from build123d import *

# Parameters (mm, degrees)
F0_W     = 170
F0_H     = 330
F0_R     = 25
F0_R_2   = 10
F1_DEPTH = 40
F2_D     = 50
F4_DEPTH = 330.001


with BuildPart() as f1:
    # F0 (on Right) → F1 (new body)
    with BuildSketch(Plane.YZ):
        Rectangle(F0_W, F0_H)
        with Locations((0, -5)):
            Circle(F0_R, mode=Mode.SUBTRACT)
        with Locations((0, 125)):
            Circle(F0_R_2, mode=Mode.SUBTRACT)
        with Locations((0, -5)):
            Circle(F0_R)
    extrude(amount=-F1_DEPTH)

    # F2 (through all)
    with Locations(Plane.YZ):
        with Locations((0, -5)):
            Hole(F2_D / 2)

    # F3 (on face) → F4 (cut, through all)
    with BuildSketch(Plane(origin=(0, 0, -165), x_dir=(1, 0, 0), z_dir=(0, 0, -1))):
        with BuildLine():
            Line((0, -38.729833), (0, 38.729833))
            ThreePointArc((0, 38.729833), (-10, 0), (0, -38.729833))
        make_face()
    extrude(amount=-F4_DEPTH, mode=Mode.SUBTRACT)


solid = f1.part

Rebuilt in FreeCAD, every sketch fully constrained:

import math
import FreeCAD as App
import Part
import Sketcher

V = App.Vector
Q = App.Units.Quantity


def add_polygon(sketch, points):
    """Adds a closed chain of lines whose ends are joined by coincident constraints."""
    first, n = sketch.GeometryCount, len(points)
    for a, b in zip(points, points[1:] + points[:1]):
        sketch.addGeometry(Part.LineSegment(App.Vector(*a, 0), App.Vector(*b, 0)), False)
    for i in range(n):
        sketch.addConstraint(Sketcher.Constraint("Coincident", first + i, 2, first + (i + 1) % n, 1))

doc = App.newDocument("Part")
params = doc.addObject("Spreadsheet::Sheet", "Params")
for row, (alias, value) in enumerate([
    ("sketch1_diameter", "20 mm"),
    ("sketch1_width", "170 mm"),
    ("sketch1_height", "330 mm"),
    ("pad1_length", "40 mm"),
    ("sketch2_diameter", "50 mm"),
    ("hole_diameter", "50 mm"),
    ("sketch3_radius", "79.999998 mm"),
], start=1):
    params.set(f"A{row}", alias)
    params.set(f"B{row}", "=" + value)
    params.setAlias(f"B{row}", alias)

body = doc.addObject("PartDesign::Body", "Body")

sketch1 = body.newObject("Sketcher::SketchObject", "Sketch")
sketch1.AttachmentSupport = (doc.getObject("YZ_Plane"), [""])
sketch1.MapMode = "FlatFace"
add_polygon(sketch1, [(-85, 165), (-85, -165), (85, -165), (85, 165)])
sketch1.addGeometry(Part.Circle(V(0, 125, 0), V(0, 0, 1), 10), False)
sketch1.addConstraint(Sketcher.Constraint("Vertical", 0))
sketch1.addConstraint(Sketcher.Constraint("Horizontal", 1))
sketch1.addConstraint(Sketcher.Constraint("Vertical", 2))
sketch1.addConstraint(Sketcher.Constraint("Horizontal", 3))
sketch1.addConstraint(Sketcher.Constraint("Symmetric", 0, 2, 2, 2, -1, 1))
sketch1.addConstraint(Sketcher.Constraint("PointOnObject", 4, 3, -2))
sketch1.addConstraint(Sketcher.Constraint("Diameter", 4, Q("20 mm")))
sketch1.addConstraint(Sketcher.Constraint("DistanceX", 1, 1, 1, 2, Q("170 mm")))
sketch1.addConstraint(Sketcher.Constraint("DistanceY", 0, 2, 0, 1, Q("330 mm")))
sketch1.addConstraint(Sketcher.Constraint("DistanceY", -1, 1, 4, 3, Q("125 mm")))
sketch1.setExpression("Constraints[10]", "Params.sketch1_diameter")
sketch1.setExpression("Constraints[11]", "Params.sketch1_width")
sketch1.setExpression("Constraints[12]", "Params.sketch1_height")
pad1 = body.newObject("PartDesign::Pad", "Pad")
pad1.Profile = sketch1
pad1.setExpression("Length", "Params.pad1_length")
pad1.Reversed = True

sketch2 = body.newObject("Sketcher::SketchObject", "Sketch001")
sketch2.AttachmentSupport = (doc.getObject("YZ_Plane"), [""])
sketch2.MapMode = "FlatFace"
sketch2.addGeometry(Part.Circle(V(0, -5, 0), V(0, 0, 1), 25), False)
sketch2.addConstraint(Sketcher.Constraint("PointOnObject", 0, 3, -2))
sketch2.addConstraint(Sketcher.Constraint("Diameter", 0, Q("50 mm")))
sketch2.addConstraint(Sketcher.Constraint("DistanceY", 0, 3, -1, 1, Q("5 mm")))
sketch2.setExpression("Constraints[1]", "Params.sketch2_diameter")
doc.recompute()
hole = body.newObject("PartDesign::Hole", "Hole")
hole.Profile = sketch2
hole.ThreadType = "None"
hole.setExpression("Diameter", "Params.hole_diameter")
hole.DepthType = "ThroughAll"

sketch3 = body.newObject("Sketcher::SketchObject", "Sketch002")
sketch3.AttachmentSupport = (doc.getObject("XY_Plane"), [""])
sketch3.MapMode = "FlatFace"
sketch3.AttachmentOffset = App.Placement(V(0, 0, -165), App.Rotation())
sketch3.addGeometry(Part.LineSegment(V(0, 39, 0), V(0, -39, 0)), False)
sketch3.addGeometry(Part.ArcOfCircle(Part.Circle(V(70, 0, 0), V(0, 0, 1), 80), math.radians(151), math.radians(209)), False)
sketch3.addConstraint(Sketcher.Constraint("Coincident", 0, 1, 1, 1))
sketch3.addConstraint(Sketcher.Constraint("Coincident", 1, 2, 0, 2))
sketch3.addConstraint(Sketcher.Constraint("Vertical", 0))
sketch3.addConstraint(Sketcher.Constraint("Symmetric", 0, 1, 1, 2, -1, 1))
sketch3.addConstraint(Sketcher.Constraint("Radius", 1, Q("79.999998 mm")))
sketch3.addConstraint(Sketcher.Constraint("DistanceX", -1, 1, 1, 3, Q("69.999998 mm")))
sketch3.setExpression("Constraints[4]", "Params.sketch3_radius")
pocket1 = body.newObject("PartDesign::Pocket", "Pocket")
pocket1.Profile = sketch3
pocket1.Type = "ThroughAll"
pocket1.Reversed = True

doc.recompute()
